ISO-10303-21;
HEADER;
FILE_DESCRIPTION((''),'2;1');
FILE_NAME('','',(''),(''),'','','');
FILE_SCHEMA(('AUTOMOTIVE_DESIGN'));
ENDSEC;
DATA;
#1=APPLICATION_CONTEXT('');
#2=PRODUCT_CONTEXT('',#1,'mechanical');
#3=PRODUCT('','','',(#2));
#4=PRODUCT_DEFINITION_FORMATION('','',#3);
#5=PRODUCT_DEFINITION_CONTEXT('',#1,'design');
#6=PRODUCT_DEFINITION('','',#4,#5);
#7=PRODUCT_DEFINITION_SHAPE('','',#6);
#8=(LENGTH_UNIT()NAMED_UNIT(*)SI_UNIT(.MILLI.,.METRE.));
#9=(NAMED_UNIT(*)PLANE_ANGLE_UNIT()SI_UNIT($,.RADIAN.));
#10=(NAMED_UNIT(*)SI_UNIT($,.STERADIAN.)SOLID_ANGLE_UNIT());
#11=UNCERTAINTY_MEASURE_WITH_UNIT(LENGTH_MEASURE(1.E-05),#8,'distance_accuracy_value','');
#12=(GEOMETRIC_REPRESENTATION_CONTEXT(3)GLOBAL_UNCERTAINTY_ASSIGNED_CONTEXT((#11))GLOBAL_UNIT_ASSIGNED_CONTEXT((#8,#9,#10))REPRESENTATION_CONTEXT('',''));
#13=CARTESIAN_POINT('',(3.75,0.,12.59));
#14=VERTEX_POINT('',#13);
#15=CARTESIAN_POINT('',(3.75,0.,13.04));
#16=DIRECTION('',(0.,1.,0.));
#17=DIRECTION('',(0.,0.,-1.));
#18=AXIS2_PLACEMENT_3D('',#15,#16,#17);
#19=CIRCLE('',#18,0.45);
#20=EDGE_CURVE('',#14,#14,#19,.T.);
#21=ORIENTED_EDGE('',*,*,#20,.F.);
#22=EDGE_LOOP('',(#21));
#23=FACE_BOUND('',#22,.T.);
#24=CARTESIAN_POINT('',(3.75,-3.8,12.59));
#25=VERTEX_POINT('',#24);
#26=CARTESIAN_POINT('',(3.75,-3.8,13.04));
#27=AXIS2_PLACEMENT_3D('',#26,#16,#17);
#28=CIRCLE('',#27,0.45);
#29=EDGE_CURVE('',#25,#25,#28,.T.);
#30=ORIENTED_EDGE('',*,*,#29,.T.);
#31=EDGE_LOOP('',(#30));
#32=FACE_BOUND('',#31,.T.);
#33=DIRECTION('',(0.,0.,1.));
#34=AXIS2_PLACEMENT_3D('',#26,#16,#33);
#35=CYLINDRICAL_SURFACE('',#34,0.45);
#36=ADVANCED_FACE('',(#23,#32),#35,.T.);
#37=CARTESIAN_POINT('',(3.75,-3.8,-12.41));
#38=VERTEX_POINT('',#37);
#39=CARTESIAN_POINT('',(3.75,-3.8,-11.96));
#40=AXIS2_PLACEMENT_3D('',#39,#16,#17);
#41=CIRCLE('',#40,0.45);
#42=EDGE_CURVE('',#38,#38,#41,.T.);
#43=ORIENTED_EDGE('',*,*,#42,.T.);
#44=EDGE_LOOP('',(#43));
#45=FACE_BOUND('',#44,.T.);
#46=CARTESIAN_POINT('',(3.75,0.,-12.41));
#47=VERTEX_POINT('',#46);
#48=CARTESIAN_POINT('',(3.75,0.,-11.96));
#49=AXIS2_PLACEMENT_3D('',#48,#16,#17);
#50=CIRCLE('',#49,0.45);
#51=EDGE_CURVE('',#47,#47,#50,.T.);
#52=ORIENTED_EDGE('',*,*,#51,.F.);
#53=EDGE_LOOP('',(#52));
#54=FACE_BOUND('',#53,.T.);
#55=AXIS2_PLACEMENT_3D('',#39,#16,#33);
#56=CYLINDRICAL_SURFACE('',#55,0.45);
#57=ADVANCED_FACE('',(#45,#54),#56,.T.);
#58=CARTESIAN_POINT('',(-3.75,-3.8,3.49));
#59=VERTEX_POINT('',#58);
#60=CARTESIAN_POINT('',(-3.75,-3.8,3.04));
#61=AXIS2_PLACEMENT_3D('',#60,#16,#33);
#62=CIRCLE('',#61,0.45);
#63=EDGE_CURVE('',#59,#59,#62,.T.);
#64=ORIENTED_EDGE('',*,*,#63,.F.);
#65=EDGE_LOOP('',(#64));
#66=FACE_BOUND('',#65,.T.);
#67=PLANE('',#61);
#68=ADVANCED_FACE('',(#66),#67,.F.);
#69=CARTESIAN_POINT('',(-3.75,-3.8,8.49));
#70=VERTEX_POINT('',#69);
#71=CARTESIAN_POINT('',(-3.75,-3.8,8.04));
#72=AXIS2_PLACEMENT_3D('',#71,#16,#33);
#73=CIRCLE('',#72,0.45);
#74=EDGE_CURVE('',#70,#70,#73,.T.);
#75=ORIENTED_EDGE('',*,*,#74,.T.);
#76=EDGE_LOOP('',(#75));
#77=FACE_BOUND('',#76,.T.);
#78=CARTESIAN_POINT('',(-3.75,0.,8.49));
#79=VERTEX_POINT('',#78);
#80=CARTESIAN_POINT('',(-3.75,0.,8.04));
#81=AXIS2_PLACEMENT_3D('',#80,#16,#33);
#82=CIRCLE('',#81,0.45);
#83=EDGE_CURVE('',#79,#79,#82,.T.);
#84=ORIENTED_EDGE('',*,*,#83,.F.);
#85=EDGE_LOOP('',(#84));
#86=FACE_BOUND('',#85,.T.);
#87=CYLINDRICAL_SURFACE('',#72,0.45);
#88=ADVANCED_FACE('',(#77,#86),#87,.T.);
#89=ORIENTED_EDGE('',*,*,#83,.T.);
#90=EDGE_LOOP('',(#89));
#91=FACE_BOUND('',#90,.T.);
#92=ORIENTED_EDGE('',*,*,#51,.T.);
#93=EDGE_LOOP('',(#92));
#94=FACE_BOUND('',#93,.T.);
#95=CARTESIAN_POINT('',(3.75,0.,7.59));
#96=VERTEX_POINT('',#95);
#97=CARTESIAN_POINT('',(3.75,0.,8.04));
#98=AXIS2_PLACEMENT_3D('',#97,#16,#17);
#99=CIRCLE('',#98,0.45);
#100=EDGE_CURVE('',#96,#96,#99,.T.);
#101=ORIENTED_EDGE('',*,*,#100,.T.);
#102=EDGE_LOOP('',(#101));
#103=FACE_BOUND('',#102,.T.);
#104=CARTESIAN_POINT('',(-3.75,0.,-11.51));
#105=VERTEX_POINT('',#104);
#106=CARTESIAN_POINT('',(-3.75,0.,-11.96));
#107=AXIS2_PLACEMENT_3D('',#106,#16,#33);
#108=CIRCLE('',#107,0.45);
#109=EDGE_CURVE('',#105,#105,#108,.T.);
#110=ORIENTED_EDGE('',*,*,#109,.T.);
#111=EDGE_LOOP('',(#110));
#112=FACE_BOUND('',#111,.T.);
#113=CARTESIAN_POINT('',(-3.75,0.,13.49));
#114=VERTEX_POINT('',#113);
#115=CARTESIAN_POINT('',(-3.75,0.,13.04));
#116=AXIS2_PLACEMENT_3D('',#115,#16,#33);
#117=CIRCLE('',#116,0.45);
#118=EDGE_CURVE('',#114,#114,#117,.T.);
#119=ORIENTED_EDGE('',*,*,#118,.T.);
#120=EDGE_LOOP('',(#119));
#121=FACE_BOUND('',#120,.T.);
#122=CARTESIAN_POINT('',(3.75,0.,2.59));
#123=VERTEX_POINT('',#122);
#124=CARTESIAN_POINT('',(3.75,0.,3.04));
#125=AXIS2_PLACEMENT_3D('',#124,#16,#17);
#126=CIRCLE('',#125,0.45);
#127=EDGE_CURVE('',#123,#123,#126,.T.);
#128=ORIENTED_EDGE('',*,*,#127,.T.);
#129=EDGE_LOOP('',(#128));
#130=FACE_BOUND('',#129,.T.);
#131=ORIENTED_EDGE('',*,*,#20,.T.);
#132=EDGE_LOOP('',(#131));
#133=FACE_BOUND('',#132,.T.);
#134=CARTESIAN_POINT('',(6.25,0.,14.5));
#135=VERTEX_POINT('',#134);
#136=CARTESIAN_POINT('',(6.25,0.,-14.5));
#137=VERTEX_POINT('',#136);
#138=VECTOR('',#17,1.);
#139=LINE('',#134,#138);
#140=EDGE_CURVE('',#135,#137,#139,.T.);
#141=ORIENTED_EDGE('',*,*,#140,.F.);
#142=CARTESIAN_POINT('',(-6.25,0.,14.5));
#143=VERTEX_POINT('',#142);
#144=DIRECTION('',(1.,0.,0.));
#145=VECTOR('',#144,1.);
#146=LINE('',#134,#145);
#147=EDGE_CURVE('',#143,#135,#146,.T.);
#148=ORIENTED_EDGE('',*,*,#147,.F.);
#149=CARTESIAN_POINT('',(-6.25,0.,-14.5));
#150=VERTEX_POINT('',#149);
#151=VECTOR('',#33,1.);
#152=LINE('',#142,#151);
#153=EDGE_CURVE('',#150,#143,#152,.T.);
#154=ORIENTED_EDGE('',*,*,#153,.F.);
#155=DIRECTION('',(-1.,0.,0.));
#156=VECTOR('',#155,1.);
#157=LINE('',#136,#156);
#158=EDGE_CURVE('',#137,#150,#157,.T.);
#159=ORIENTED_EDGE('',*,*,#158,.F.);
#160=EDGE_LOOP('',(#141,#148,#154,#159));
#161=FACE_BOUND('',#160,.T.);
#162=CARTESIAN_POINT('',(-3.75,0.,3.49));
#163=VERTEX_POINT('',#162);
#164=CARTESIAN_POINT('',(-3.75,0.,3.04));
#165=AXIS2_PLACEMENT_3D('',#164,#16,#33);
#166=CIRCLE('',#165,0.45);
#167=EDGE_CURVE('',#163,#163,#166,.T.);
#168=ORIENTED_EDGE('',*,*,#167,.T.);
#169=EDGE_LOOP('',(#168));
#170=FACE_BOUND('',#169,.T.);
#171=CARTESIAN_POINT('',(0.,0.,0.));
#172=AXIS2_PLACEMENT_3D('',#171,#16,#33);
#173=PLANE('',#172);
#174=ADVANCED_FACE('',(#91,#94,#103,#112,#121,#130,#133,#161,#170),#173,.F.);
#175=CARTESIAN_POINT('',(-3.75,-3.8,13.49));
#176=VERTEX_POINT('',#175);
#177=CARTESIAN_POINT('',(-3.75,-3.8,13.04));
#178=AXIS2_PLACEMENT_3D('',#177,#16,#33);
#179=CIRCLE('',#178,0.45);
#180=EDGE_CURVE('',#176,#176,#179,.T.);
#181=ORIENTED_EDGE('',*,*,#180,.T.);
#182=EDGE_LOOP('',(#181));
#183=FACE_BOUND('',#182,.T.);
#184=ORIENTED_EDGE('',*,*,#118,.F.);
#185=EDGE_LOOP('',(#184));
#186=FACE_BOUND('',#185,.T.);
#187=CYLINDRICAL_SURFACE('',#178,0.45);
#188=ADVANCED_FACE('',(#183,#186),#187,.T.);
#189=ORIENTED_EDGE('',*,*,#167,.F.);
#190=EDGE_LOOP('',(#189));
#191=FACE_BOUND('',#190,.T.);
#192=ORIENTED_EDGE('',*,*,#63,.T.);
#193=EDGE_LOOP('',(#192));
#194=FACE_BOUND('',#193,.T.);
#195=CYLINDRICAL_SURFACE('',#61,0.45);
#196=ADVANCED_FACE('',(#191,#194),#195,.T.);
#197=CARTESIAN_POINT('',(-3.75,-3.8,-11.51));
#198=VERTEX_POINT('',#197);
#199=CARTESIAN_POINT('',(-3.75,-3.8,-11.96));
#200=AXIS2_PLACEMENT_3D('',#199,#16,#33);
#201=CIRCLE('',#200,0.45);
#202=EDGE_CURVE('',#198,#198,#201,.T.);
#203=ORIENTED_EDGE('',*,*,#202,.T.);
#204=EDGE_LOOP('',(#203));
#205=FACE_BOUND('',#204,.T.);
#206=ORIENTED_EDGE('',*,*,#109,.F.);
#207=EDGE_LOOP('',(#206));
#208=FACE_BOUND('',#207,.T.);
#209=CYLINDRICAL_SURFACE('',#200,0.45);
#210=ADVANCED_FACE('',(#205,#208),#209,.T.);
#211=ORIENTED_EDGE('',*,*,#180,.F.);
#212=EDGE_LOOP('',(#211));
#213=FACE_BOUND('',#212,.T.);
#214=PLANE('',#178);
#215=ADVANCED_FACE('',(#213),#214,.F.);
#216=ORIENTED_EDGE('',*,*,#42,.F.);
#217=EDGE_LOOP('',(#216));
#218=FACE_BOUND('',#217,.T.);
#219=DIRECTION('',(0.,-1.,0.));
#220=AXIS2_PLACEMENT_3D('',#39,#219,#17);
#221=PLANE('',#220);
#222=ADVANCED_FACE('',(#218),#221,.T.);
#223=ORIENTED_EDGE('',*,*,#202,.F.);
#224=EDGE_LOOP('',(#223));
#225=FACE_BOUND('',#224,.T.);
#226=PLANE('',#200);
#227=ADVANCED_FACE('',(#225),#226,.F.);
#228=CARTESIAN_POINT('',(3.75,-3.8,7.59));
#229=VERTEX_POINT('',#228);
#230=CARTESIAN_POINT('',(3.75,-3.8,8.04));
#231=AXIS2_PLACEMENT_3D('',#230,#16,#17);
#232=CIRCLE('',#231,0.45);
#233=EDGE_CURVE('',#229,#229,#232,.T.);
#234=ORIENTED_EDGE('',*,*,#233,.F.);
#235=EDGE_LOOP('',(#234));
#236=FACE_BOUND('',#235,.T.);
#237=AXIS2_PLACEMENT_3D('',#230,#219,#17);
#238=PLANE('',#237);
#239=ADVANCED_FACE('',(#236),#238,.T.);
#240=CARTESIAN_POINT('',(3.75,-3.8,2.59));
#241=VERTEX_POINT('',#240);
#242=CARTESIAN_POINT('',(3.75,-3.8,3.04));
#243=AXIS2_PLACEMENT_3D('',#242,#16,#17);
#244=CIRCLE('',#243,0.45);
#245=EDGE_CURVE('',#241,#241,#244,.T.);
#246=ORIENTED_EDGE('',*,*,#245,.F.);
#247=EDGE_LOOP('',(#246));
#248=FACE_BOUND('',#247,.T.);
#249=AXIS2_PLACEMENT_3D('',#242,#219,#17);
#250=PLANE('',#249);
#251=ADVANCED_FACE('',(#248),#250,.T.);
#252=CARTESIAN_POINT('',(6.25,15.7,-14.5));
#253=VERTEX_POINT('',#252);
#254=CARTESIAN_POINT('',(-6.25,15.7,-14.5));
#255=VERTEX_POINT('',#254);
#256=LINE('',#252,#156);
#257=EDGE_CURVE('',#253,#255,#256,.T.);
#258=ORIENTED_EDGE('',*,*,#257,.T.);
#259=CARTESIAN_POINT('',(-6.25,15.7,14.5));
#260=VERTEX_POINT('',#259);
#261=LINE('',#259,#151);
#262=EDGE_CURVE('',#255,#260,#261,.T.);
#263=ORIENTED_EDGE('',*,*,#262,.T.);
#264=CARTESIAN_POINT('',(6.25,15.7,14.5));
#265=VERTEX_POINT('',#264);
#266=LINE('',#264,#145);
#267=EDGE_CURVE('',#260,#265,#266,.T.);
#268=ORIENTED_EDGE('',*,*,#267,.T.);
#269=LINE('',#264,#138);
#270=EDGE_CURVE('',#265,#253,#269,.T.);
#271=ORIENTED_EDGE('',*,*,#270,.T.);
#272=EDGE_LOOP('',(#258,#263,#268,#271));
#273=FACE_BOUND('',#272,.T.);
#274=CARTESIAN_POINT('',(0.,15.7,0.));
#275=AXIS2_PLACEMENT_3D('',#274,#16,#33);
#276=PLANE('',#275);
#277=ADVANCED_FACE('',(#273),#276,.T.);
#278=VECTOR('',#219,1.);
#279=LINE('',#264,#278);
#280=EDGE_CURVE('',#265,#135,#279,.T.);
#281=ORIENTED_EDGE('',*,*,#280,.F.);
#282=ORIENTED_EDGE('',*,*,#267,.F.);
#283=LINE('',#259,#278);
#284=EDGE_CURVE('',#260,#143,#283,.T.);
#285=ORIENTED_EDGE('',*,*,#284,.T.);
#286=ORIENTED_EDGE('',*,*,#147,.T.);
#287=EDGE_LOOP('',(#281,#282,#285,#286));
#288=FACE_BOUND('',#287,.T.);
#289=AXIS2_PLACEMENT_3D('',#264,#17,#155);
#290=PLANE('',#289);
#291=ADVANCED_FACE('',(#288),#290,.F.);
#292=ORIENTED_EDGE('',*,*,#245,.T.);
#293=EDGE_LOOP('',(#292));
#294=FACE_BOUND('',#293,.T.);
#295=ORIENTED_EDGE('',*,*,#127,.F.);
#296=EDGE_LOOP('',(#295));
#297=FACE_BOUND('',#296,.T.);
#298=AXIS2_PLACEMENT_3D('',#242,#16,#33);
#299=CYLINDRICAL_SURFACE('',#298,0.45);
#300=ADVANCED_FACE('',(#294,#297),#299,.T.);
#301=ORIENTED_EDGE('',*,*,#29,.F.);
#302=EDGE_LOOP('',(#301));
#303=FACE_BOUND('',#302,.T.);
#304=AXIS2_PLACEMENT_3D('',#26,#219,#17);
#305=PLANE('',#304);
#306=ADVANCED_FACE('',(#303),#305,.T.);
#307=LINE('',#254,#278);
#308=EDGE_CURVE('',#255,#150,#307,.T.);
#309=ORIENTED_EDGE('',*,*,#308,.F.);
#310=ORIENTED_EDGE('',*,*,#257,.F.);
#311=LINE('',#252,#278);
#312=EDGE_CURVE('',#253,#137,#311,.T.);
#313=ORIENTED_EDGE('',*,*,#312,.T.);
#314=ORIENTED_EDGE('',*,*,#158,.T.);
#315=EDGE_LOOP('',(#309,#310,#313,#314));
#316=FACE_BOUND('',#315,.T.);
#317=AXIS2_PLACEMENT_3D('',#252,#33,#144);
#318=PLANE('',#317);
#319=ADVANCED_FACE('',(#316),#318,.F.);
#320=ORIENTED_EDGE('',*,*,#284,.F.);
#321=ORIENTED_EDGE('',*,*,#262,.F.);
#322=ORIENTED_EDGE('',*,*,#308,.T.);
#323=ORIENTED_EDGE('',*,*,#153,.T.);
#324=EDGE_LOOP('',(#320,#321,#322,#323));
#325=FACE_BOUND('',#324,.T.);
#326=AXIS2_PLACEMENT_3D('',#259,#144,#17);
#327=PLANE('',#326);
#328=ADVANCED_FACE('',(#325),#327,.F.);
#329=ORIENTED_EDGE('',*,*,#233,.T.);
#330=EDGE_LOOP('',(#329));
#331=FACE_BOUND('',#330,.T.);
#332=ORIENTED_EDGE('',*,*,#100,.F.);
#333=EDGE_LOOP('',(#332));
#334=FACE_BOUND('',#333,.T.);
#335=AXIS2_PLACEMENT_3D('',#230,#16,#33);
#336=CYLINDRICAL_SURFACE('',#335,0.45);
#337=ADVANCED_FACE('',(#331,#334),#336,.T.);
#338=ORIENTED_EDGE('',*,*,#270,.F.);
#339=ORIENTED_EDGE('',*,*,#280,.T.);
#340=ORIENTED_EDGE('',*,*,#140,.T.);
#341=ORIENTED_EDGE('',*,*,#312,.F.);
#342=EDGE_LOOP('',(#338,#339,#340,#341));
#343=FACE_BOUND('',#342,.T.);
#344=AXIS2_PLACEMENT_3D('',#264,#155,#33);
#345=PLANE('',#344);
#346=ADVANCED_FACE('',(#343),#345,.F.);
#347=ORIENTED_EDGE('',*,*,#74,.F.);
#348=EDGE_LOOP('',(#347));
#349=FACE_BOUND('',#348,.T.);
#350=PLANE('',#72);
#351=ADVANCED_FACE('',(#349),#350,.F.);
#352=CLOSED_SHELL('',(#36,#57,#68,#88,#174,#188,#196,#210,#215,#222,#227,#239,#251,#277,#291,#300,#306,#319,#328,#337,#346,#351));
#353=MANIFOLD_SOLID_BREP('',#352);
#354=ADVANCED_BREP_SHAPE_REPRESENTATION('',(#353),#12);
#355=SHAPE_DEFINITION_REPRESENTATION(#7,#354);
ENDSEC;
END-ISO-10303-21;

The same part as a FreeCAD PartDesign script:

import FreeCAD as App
import Part
import Sketcher

doc = App.newDocument("Part")
body = doc.addObject("PartDesign::Body", "Body")

sketch1 = body.newObject("Sketcher::SketchObject", "Sketch")
sketch1.AttachmentSupport = (doc.getObject("XZ_Plane"), [""])
sketch1.MapMode = "FlatFace"
sketch1.addGeometry(Part.LineSegment(App.Vector(-6, -14, 0), App.Vector(-6, 14, 0)), False)
sketch1.addGeometry(Part.LineSegment(App.Vector(-6, 14, 0), App.Vector(6, 14, 0)), False)
sketch1.addGeometry(Part.LineSegment(App.Vector(6, 14, 0), App.Vector(6, -14, 0)), False)
sketch1.addGeometry(Part.LineSegment(App.Vector(6, -14, 0), App.Vector(-6, -14, 0)), False)
sketch1.addConstraint(Sketcher.Constraint("Coincident", 0, 2, 1, 1))
sketch1.addConstraint(Sketcher.Constraint("Coincident", 1, 2, 2, 1))
sketch1.addConstraint(Sketcher.Constraint("Coincident", 2, 2, 3, 1))
sketch1.addConstraint(Sketcher.Constraint("Coincident", 3, 2, 0, 1))
sketch1.addConstraint(Sketcher.Constraint("Vertical", 0))
sketch1.addConstraint(Sketcher.Constraint("Horizontal", 1))
sketch1.addConstraint(Sketcher.Constraint("Vertical", 2))
sketch1.addConstraint(Sketcher.Constraint("Horizontal", 3))
sketch1.addConstraint(Sketcher.Constraint("Symmetric", 0, 2, 2, 2, -1, 1))
sketch1.addConstraint(Sketcher.Constraint("DistanceY", 0, 1, 0, 2, 29.0))
sketch1.addConstraint(Sketcher.Constraint("DistanceX", 1, 1, 1, 2, 12.5))
pad1 = body.newObject("PartDesign::Pad", "Pad")
pad1.Profile = sketch1
pad1.Length = 15.7
pad1.Reversed = True

sketch2 = body.newObject("Sketcher::SketchObject", "Sketch001")
sketch2.AttachmentSupport = (doc.getObject("XZ_Plane"), [""])
sketch2.MapMode = "FlatFace"
sketch2.addGeometry(Part.Circle(App.Vector(-3.75, 13.04, 0), App.Vector(0, 0, 1), 0.45), False)
sketch2.addGeometry(Part.Circle(App.Vector(-3.75, 8.04, 0), App.Vector(0, 0, 1), 0.45), False)
sketch2.addGeometry(Part.Circle(App.Vector(-3.75, 3.04, 0), App.Vector(0, 0, 1), 0.45), False)
sketch2.addGeometry(Part.Circle(App.Vector(-3.75, -11.96, 0), App.Vector(0, 0, 1), 0.45), False)
sketch2.addGeometry(Part.Circle(App.Vector(3.75, -11.96, 0), App.Vector(0, 0, 1), 0.45), False)
sketch2.addGeometry(Part.Circle(App.Vector(3.75, 3.04, 0), App.Vector(0, 0, 1), 0.45), False)
sketch2.addGeometry(Part.Circle(App.Vector(3.75, 8.04, 0), App.Vector(0, 0, 1), 0.45), False)
sketch2.addGeometry(Part.Circle(App.Vector(3.75, 13.04, 0), App.Vector(0, 0, 1), 0.45), False)
sketch2.addConstraint(Sketcher.Constraint("Equal", 0, 1))
sketch2.addConstraint(Sketcher.Constraint("Equal", 1, 2))
sketch2.addConstraint(Sketcher.Constraint("Equal", 2, 3))
sketch2.addConstraint(Sketcher.Constraint("Equal", 3, 4))
sketch2.addConstraint(Sketcher.Constraint("Equal", 4, 5))
sketch2.addConstraint(Sketcher.Constraint("Equal", 5, 6))
sketch2.addConstraint(Sketcher.Constraint("Equal", 6, 7))
sketch2.addConstraint(Sketcher.Constraint("Symmetric", 3, 3, 4, 3, -2))
sketch2.addConstraint(Sketcher.Constraint("Symmetric", 2, 3, 5, 3, -2))
sketch2.addConstraint(Sketcher.Constraint("Symmetric", 1, 3, 6, 3, -2))
sketch2.addConstraint(Sketcher.Constraint("Symmetric", 0, 3, 7, 3, -2))
sketch2.addConstraint(Sketcher.Constraint("Vertical", 0, 3, 1, 3))
sketch2.addConstraint(Sketcher.Constraint("Vertical", 1, 3, 2, 3))
sketch2.addConstraint(Sketcher.Constraint("Vertical", 2, 3, 3, 3))
sketch2.addConstraint(Sketcher.Constraint("Diameter", 0, 0.9))
sketch2.addConstraint(Sketcher.Constraint("DistanceY", 1, 3, 0, 3, 5.0))
sketch2.addConstraint(Sketcher.Constraint("DistanceY", 2, 3, 1, 3, 5.0))
sketch2.addConstraint(Sketcher.Constraint("DistanceY", 3, 3, 2, 3, 15.0))
sketch2.addConstraint(Sketcher.Constraint("DistanceX", 3, 3, 4, 3, 7.5))
sketch2.addConstraint(Sketcher.Constraint("DistanceY", -1, 1, 0, 3, 13.04))
pad2 = body.newObject("PartDesign::Pad", "Pad001")
pad2.Profile = sketch2
pad2.Length = 3.8

doc.recompute()
